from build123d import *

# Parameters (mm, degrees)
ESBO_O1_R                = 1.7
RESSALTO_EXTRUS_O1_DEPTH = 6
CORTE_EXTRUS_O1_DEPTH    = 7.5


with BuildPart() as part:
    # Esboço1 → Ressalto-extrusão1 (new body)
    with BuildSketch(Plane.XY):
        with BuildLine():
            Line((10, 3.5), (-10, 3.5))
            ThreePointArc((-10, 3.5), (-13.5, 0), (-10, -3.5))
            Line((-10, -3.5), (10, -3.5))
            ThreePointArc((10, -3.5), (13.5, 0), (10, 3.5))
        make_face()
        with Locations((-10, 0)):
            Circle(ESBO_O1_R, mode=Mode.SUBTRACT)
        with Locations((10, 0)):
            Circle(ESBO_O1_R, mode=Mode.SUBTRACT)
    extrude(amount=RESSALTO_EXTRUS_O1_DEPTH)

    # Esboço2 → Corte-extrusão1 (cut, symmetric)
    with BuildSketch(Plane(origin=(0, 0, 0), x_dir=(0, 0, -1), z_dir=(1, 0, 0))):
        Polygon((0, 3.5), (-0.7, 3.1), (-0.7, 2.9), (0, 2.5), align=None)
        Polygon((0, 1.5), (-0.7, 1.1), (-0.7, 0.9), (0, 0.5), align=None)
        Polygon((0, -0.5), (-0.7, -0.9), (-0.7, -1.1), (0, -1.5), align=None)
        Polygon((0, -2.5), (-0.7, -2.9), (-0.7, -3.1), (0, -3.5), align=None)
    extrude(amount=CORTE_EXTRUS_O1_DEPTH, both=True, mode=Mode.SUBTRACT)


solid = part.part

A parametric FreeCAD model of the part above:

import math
import FreeCAD as App
import Part
import Sketcher

V = App.Vector
Q = App.Units.Quantity


def add_polygon(sketch, points):
    """Adds a closed chain of lines whose ends are joined by coincident constraints."""
    first, n = sketch.GeometryCount, len(points)
    for a, b in zip(points, points[1:] + points[:1]):
        sketch.addGeometry(Part.LineSegment(App.Vector(*a, 0), App.Vector(*b, 0)), False)
    for i in range(n):
        sketch.addConstraint(Sketcher.Constraint("Coincident", first + i, 2, first + (i + 1) % n, 1))

doc = App.newDocument("Part")
body = doc.addObject("PartDesign::Body", "Body")

sketch1 = body.newObject("Sketcher::SketchObject", "Sketch")
sketch1.AttachmentSupport = (doc.getObject("XY_Plane"), [""])
sketch1.MapMode = "FlatFace"
sketch1.addGeometry(Part.LineSegment(V(10, 3.5, 0), V(-10, 3.5, 0)), False)
sketch1.addGeometry(Part.ArcOfCircle(Part.Circle(V(-10, 0, 0), V(0, 0, 1), 3.5), math.radians(90), math.radians(270)), False)
sketch1.addGeometry(Part.LineSegment(V(-10, -3.5, 0), V(10, -3.5, 0)), False)
sketch1.addGeometry(Part.ArcOfCircle(Part.Circle(V(10, 0, 0), V(0, 0, 1), 3.5), math.radians(-90), math.radians(90)), False)
sketch1.addGeometry(Part.Circle(V(-10, 0, 0), V(0, 0, 1), 1.7), False)
sketch1.addGeometry(Part.Circle(V(10, 0, 0), V(0, 0, 1), 1.7), False)
sketch1.addConstraint(Sketcher.Constraint("Tangent", 0, 2, 1, 1))
sketch1.addConstraint(Sketcher.Constraint("Tangent", 1, 2, 2, 1))
sketch1.addConstraint(Sketcher.Constraint("Tangent", 2, 2, 3, 1))
sketch1.addConstraint(Sketcher.Constraint("Tangent", 3, 2, 0, 1))
sketch1.addConstraint(Sketcher.Constraint("Horizontal", 0))
sketch1.addConstraint(Sketcher.Constraint("Horizontal", 2))
sketch1.addConstraint(Sketcher.Constraint("Coincident", 4, 3, 1, 3))
sketch1.addConstraint(Sketcher.Constraint("Coincident", 5, 3, 3, 3))
sketch1.addConstraint(Sketcher.Constraint("Equal", 4, 5))
sketch1.addConstraint(Sketcher.Constraint("Symmetric", 1, 3, 3, 3, -1, 1))
sketch1.addConstraint(Sketcher.Constraint("Diameter", 4, Q("3.4 mm")))
sketch1.addConstraint(Sketcher.Constraint("Radius", 1, Q("3.5 mm")))
sketch1.addConstraint(Sketcher.Constraint("DistanceX", 0, 2, 0, 1, Q("20 mm")))
pad1 = body.newObject("PartDesign::Pad", "Pad")
pad1.Profile = sketch1
pad1.Length = 6

sketch2 = body.newObject("Sketcher::SketchObject", "Sketch001")
sketch2.AttachmentSupport = (doc.getObject("YZ_Plane"), [""])
sketch2.MapMode = "FlatFace"
add_polygon(sketch2, [(3.5, 0), (3.1, 0.7), (2.9, 0.7), (2.5, 0)])
add_polygon(sketch2, [(1.5, 0), (1.1, 0.7), (0.9, 0.7), (0.5, 0)])
add_polygon(sketch2, [(-0.5, 0), (-0.9, 0.7), (-1.1, 0.7), (-1.5, 0)])
add_polygon(sketch2, [(-2.5, 0), (-2.9, 0.7), (-3.1, 0.7), (-3.5, 0)])
sketch2.addConstraint(Sketcher.Constraint("Horizontal", 1))
sketch2.addConstraint(Sketcher.Constraint("Horizontal", 3))
sketch2.addConstraint(Sketcher.Constraint("Horizontal", 5))
sketch2.addConstraint(Sketcher.Constraint("Horizontal", 7))
sketch2.addConstraint(Sketcher.Constraint("Horizontal", 9))
sketch2.addConstraint(Sketcher.Constraint("Horizontal", 11))
sketch2.addConstraint(Sketcher.Constraint("Horizontal", 13))
sketch2.addConstraint(Sketcher.Constraint("Horizontal", 15))
sketch2.addConstraint(Sketcher.Constraint("Symmetric", 7, 2, 10, 2, -1, 1))
sketch2.addConstraint(Sketcher.Constraint("Symmetric", 3, 2, 14, 2, -1, 1))
sketch2.addConstraint(Sketcher.Constraint("Symmetric", 5, 2, 8, 2, -2))
sketch2.addConstraint(Sketcher.Constraint("Symmetric", 6, 2, 11, 2, -2))
sketch2.addConstraint(Sketcher.Constraint("Symmetric", 1, 2, 12, 2, -2))
sketch2.addConstraint(Sketcher.Constraint("Symmetric", 2, 2, 15, 2, -2))
sketch2.addConstraint(Sketcher.Constraint("Parallel", 0, 4))
sketch2.addConstraint(Sketcher.Constraint("Parallel", 2, 6))
sketch2.addConstraint(Sketcher.Constraint("Parallel", 4, 8))
sketch2.addConstraint(Sketcher.Constraint("Parallel", 6, 10))
sketch2.addConstraint(Sketcher.Constraint("Parallel", 10, 14))
sketch2.addConstraint(Sketcher.Constraint("Horizontal", 1, 2, 4, 2))
sketch2.addConstraint(Sketcher.Constraint("Equal", 1, 5))
sketch2.addConstraint(Sketcher.Constraint("DistanceX", 3, 1, 3, 2, Q("1 mm")))
sketch2.addConstraint(Sketcher.Constraint("DistanceX", 1, 2, 1, 1, Q("0.2 mm")))
sketch2.addConstraint(Sketcher.Constraint("DistanceX", 4, 2, 0, 2, Q("2 mm")))
sketch2.addConstraint(Sketcher.Constraint("DistanceX", 8, 2, 4, 2, Q("2 mm")))
sketch2.addConstraint(Sketcher.Constraint("DistanceY", -1, 1, 0, 2, Q("0.7 mm")))
pocket1 = body.newObject("PartDesign::Pocket", "Pocket")
pocket1.Profile = sketch2
pocket1.Length = 15
pocket1.Midplane = True

doc.recompute()
